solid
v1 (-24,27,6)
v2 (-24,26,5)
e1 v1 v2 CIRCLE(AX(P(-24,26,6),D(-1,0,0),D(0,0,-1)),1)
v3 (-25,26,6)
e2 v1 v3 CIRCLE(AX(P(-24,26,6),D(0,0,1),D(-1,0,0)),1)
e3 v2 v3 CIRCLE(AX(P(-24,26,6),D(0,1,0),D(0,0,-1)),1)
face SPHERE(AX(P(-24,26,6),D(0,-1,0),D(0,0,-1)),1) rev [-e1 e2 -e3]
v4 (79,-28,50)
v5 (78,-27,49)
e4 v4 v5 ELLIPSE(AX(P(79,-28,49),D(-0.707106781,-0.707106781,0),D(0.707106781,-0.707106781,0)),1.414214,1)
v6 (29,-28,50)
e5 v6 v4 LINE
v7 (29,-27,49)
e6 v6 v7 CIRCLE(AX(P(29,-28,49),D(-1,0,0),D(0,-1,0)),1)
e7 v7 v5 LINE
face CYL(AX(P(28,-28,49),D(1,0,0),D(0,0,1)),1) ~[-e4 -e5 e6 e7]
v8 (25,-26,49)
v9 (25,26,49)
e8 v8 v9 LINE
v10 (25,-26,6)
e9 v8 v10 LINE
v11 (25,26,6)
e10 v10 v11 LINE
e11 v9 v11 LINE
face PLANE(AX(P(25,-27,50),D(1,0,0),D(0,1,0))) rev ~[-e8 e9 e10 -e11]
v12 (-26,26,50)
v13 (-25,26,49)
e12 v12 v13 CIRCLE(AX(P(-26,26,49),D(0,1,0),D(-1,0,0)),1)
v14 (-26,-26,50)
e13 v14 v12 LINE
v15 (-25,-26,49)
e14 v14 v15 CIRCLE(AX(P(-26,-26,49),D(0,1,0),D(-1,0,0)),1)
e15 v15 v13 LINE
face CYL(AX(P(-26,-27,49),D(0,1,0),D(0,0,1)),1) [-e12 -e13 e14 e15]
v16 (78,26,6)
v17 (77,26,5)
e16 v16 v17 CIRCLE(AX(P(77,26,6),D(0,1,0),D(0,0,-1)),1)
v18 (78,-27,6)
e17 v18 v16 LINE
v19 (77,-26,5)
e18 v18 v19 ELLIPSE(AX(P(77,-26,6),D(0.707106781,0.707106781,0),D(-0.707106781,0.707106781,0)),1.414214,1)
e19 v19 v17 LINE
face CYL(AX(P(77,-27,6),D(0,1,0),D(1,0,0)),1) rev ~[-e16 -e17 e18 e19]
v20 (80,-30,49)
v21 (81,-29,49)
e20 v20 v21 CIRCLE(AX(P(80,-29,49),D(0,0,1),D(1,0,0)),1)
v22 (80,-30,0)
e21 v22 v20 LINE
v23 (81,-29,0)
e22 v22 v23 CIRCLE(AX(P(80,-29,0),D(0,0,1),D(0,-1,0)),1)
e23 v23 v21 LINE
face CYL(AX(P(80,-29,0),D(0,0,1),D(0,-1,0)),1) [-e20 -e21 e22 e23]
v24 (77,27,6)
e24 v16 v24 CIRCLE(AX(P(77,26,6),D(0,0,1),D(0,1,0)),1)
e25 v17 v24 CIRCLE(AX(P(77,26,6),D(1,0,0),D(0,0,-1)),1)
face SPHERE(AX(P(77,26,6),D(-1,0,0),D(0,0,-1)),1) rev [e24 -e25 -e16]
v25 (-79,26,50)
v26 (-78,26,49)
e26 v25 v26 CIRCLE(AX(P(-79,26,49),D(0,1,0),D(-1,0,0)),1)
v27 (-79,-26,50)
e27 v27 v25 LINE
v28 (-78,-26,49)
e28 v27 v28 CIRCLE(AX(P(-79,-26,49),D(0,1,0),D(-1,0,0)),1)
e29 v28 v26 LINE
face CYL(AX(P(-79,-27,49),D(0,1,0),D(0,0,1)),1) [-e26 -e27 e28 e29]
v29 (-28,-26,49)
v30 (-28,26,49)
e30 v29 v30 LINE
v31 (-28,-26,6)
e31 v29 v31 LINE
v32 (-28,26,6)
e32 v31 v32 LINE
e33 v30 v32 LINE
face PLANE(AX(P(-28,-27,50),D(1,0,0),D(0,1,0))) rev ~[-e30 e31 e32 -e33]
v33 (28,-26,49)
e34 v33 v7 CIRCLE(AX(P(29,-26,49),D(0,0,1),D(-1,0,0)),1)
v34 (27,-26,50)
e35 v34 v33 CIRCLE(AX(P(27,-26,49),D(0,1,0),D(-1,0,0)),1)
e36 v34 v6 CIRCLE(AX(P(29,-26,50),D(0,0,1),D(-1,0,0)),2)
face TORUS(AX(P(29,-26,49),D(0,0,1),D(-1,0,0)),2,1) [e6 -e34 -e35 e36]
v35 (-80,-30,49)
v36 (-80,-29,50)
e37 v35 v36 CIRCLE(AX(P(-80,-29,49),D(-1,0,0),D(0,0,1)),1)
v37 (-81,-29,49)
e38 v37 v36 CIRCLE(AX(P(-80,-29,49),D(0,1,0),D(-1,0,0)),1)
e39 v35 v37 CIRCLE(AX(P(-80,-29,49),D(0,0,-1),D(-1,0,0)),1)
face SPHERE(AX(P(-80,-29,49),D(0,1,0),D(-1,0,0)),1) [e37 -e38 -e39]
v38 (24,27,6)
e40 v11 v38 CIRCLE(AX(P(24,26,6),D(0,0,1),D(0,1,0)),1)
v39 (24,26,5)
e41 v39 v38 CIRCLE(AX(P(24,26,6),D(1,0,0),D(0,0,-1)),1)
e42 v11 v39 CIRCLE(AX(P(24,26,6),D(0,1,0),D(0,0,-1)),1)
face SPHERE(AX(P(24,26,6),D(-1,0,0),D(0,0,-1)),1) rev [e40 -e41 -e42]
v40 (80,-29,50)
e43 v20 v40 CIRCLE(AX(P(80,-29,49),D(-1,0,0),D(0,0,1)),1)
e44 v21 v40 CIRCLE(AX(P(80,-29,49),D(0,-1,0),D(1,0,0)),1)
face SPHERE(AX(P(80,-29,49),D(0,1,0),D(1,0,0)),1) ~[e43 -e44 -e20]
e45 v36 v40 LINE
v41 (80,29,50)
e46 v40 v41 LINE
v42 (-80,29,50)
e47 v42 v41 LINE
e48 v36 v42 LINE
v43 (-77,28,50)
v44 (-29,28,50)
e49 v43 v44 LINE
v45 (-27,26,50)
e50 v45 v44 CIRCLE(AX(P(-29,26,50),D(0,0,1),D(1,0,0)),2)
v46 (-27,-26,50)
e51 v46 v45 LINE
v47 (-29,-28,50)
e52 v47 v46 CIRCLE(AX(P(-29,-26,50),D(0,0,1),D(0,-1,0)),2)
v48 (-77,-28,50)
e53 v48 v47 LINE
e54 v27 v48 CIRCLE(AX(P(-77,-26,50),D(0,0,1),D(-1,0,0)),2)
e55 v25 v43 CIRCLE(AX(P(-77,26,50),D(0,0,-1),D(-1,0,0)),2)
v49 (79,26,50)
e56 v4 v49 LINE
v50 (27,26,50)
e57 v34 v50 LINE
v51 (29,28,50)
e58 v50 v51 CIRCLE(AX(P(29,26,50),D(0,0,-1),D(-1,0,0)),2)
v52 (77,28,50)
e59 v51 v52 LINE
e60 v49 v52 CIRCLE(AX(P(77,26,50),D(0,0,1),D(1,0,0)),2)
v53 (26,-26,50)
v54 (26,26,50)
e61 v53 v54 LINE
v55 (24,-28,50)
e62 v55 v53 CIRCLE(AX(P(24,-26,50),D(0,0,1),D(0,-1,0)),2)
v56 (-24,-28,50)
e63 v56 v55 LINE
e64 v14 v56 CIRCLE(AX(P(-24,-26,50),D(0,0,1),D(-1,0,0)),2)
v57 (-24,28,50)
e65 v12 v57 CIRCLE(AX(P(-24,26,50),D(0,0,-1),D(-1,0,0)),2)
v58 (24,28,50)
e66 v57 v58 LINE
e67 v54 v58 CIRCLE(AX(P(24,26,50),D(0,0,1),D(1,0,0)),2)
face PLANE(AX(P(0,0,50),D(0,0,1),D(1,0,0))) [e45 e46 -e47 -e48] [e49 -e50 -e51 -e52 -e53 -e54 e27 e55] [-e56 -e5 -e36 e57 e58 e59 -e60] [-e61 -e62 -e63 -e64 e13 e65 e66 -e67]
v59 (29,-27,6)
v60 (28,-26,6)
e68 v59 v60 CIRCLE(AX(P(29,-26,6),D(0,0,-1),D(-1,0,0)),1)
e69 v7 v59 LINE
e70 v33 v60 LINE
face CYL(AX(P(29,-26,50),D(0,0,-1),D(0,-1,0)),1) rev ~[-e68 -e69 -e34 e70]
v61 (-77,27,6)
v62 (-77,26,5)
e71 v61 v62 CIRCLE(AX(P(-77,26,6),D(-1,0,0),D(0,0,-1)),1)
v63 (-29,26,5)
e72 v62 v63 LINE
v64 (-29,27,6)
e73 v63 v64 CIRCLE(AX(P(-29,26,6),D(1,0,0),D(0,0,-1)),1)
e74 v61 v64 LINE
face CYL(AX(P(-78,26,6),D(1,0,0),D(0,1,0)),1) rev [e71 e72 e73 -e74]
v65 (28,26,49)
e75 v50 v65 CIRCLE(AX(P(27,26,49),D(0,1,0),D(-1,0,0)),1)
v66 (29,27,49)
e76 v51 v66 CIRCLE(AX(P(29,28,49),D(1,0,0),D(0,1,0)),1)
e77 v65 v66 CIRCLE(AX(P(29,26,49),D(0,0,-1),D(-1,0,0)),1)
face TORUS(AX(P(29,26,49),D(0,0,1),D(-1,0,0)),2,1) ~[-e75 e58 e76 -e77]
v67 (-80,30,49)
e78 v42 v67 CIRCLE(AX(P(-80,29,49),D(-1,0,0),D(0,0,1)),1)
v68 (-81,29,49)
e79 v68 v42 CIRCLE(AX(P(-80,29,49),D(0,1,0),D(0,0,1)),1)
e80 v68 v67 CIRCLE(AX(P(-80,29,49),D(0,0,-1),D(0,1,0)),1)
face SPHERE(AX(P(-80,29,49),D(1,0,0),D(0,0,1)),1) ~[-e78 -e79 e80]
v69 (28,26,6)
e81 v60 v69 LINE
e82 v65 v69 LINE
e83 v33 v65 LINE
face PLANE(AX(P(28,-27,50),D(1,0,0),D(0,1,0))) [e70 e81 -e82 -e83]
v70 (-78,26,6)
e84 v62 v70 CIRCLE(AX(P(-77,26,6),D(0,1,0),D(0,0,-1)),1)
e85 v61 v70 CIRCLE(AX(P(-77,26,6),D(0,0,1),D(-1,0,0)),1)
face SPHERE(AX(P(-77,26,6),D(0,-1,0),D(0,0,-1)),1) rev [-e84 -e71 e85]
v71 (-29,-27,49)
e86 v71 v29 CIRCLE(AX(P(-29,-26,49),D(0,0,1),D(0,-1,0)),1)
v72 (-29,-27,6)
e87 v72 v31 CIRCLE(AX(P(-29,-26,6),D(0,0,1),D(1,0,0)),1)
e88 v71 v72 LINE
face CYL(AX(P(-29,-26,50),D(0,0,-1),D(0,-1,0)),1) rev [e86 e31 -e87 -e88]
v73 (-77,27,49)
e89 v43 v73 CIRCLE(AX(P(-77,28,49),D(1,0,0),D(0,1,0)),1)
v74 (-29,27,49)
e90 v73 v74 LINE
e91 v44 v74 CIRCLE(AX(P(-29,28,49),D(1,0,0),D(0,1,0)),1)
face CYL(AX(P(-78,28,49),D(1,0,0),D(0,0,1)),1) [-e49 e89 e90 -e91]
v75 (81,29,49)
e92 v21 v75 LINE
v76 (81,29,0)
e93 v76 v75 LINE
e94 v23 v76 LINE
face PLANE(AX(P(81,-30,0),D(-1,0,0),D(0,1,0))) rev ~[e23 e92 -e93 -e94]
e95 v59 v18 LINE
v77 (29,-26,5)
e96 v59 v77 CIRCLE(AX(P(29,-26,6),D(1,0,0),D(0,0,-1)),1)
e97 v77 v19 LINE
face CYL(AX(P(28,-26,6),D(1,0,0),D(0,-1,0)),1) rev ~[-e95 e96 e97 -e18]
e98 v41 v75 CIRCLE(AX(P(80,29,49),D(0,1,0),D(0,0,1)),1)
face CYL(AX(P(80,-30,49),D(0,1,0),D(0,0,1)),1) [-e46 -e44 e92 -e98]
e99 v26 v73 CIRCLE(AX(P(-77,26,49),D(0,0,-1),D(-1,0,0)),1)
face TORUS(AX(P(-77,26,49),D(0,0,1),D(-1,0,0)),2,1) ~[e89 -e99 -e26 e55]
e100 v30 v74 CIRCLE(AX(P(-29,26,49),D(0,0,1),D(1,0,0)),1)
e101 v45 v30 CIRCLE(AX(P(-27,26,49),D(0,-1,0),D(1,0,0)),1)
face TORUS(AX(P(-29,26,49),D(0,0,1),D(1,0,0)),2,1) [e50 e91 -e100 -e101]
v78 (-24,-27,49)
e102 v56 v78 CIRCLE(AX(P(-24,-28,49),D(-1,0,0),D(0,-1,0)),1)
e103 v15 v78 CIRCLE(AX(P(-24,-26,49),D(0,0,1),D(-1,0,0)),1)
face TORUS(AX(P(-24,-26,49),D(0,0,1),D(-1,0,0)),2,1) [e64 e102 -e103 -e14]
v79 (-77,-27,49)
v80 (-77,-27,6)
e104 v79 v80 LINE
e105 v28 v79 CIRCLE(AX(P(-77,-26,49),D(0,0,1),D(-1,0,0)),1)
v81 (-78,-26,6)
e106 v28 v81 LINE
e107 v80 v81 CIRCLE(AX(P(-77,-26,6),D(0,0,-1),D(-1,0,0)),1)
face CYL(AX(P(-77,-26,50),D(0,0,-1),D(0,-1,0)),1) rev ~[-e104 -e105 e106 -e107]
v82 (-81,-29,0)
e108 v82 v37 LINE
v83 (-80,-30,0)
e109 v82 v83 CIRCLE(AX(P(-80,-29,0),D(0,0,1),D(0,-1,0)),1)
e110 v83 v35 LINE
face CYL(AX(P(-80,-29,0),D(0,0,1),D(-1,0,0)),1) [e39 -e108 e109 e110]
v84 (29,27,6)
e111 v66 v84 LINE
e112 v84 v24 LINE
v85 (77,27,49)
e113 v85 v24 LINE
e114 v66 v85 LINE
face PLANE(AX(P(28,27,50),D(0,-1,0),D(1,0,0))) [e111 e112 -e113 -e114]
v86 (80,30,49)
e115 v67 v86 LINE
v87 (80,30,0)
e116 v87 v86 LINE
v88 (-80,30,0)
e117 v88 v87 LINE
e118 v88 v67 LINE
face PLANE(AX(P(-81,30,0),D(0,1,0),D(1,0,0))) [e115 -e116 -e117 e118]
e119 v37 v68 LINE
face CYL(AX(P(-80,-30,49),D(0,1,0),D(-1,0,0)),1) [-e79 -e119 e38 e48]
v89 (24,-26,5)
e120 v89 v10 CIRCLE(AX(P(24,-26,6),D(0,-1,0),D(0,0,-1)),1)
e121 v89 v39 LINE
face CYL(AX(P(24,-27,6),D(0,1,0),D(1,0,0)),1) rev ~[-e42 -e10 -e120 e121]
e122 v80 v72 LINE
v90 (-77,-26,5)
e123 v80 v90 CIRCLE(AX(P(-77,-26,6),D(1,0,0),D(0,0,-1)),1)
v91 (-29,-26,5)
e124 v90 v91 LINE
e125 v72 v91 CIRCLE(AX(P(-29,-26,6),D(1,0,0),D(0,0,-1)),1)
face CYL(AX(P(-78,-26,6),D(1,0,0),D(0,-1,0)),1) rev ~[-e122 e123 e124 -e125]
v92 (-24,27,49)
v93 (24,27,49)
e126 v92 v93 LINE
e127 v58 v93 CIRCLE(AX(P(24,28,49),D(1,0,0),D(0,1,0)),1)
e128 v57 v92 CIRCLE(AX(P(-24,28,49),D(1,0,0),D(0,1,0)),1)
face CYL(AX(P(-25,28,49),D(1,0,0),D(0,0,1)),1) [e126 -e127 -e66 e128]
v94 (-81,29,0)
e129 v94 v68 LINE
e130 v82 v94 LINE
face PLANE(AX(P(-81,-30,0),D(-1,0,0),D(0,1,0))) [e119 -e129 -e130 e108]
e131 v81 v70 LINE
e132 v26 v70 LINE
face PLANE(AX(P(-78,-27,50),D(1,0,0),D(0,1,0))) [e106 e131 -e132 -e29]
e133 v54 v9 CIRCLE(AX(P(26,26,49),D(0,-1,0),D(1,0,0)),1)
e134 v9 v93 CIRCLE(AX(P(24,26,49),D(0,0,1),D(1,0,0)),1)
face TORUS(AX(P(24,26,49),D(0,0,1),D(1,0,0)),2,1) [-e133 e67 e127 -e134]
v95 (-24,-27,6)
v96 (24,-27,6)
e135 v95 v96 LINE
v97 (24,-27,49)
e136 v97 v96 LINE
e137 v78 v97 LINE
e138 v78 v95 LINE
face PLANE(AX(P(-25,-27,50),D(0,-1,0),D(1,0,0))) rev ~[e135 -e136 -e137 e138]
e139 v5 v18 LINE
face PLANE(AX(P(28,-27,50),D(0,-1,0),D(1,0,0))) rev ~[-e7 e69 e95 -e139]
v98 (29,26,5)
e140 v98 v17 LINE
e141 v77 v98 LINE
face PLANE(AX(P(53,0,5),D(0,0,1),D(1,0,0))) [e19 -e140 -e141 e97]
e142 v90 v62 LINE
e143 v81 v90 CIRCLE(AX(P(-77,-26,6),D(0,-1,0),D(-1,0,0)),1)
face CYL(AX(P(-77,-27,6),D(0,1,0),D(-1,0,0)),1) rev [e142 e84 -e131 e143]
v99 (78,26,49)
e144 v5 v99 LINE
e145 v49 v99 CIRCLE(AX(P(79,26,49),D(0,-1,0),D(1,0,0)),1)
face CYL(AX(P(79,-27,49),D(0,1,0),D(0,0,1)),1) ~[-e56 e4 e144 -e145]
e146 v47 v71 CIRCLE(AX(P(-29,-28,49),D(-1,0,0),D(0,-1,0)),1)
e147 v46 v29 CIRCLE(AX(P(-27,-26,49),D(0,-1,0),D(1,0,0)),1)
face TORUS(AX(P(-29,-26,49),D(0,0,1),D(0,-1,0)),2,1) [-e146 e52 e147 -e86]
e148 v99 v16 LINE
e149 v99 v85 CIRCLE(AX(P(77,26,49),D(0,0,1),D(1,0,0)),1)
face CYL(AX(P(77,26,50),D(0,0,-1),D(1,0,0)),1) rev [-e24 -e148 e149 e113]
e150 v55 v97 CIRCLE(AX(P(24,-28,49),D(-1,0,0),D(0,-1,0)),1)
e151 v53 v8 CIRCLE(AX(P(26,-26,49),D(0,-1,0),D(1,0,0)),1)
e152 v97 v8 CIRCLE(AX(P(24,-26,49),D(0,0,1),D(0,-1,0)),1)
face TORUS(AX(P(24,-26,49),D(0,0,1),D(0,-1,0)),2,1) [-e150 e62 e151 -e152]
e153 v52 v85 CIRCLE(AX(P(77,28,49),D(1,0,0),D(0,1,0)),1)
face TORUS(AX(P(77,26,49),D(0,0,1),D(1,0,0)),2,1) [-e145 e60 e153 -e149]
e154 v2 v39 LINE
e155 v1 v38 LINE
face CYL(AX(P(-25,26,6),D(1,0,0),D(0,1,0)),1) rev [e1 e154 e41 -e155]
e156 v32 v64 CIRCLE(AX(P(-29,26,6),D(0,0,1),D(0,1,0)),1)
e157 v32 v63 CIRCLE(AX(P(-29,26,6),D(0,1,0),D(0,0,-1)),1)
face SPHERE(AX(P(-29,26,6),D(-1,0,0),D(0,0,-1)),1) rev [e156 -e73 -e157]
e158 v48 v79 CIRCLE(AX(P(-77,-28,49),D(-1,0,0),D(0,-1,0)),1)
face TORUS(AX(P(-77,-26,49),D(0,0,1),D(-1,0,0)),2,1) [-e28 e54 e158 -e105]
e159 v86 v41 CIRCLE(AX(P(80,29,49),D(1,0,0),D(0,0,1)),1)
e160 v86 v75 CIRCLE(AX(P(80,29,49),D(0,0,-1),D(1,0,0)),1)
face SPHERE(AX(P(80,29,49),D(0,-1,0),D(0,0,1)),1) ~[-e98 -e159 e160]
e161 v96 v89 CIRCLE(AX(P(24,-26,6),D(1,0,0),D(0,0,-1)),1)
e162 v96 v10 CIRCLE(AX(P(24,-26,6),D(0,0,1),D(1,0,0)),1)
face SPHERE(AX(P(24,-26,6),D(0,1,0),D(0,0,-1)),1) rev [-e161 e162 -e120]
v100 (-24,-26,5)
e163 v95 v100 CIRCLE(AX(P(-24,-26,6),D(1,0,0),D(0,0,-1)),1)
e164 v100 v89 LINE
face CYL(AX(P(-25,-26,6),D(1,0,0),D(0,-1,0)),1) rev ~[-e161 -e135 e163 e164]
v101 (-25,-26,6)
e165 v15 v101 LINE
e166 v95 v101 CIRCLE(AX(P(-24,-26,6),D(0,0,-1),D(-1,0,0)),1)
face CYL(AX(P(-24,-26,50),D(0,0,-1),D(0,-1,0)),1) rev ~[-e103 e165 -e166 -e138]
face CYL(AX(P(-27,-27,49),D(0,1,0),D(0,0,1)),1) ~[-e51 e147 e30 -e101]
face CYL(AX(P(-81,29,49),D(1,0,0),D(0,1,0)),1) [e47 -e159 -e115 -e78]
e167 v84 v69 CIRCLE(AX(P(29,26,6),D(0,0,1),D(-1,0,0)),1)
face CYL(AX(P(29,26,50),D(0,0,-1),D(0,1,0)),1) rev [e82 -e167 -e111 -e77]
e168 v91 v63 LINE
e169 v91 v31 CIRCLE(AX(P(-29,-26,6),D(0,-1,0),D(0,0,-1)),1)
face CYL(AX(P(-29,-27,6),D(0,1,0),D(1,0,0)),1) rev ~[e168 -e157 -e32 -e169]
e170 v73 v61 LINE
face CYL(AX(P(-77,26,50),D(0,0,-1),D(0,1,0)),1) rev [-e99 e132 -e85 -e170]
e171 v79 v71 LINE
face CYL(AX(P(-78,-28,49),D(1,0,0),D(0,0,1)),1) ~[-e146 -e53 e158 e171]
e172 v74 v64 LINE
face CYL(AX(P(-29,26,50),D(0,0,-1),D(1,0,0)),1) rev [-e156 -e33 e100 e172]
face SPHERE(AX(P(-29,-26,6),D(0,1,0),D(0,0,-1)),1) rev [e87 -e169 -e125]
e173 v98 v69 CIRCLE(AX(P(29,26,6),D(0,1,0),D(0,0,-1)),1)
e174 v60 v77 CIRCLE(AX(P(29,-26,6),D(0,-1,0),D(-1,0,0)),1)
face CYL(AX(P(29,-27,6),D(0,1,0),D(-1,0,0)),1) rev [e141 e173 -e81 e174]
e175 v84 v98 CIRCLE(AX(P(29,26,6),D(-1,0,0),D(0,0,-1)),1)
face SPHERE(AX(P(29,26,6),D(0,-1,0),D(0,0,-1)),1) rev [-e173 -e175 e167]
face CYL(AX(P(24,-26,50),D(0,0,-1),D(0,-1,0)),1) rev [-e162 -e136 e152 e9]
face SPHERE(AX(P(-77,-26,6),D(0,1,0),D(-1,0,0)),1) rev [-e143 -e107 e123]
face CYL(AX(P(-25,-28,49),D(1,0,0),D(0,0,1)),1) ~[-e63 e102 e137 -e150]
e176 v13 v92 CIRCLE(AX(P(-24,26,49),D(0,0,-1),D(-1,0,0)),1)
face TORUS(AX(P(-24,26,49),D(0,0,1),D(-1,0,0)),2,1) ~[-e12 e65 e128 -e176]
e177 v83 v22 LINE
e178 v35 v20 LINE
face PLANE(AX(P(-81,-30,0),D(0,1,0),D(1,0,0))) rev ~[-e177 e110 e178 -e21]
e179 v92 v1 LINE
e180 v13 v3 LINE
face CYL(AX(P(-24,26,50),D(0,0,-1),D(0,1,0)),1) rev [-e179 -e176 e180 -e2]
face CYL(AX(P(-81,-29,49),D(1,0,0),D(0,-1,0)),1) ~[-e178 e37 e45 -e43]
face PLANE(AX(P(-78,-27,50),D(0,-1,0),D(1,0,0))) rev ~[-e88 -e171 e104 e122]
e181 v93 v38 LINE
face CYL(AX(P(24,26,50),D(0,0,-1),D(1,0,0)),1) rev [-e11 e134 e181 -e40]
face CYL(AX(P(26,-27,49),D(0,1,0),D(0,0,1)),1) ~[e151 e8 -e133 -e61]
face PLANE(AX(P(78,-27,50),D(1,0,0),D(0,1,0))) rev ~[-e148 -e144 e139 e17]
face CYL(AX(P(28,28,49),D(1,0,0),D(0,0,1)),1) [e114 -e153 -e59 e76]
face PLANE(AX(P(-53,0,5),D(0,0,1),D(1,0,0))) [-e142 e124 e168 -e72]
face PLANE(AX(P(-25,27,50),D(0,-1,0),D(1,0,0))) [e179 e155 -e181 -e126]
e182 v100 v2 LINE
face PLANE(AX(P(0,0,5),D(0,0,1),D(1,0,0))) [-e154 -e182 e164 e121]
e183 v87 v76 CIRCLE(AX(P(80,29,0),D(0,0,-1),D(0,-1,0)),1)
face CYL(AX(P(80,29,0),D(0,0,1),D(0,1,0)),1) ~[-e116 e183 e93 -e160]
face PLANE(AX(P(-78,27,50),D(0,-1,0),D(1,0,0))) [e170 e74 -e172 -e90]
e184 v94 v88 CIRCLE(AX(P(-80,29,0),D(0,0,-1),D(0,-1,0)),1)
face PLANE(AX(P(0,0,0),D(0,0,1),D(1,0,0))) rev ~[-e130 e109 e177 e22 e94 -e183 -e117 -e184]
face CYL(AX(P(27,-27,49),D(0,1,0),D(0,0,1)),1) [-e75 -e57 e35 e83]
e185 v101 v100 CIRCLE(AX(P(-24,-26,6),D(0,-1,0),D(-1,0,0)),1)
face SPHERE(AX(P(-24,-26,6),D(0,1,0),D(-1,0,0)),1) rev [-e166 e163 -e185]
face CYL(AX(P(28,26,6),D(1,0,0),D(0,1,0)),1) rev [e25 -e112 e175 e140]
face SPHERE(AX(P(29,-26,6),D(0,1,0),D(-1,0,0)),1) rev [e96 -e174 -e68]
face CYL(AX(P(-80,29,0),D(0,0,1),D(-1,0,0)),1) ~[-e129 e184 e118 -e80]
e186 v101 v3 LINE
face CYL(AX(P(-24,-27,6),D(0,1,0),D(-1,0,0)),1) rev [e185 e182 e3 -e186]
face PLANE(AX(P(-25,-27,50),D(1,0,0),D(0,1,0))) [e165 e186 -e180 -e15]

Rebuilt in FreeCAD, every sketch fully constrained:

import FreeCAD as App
import Part
import Sketcher
from FreeCAD import Vector
Q = App.Units.Quantity


def edges_at(feature, points):
    """Names of the edges that pass closest to the given points."""
    edges = feature.Shape.Edges
    near = lambda p: min(range(len(edges)), key=lambda i: edges[i].distToShape(Part.Vertex(*p))[0])
    return sorted({f"Edge{near(p) + 1}" for p in points})


def add_polygon(sketch, points):
    """Adds a closed chain of lines whose ends are joined by coincident constraints."""
    first, n = sketch.GeometryCount, len(points)
    for a, b in zip(points, points[1:] + points[:1]):
        sketch.addGeometry(Part.LineSegment(App.Vector(*a, 0), App.Vector(*b, 0)), False)
    for i in range(n):
        sketch.addConstraint(Sketcher.Constraint("Coincident", first + i, 2, first + (i + 1) % n, 1))

doc = App.newDocument("Part")
body = doc.addObject("PartDesign::Body", "Body")

sketch1 = body.newObject("Sketcher::SketchObject", "Sketch")
sketch1.AttachmentSupport = (doc.getObject("XY_Plane"), [""])
sketch1.MapMode = "FlatFace"
add_polygon(sketch1, [(-81, 30), (-81, -30), (81, -30), (81, 30)])
sketch1.addConstraint([
    Sketcher.Constraint("Vertical", 0),
    Sketcher.Constraint("Horizontal", 1),
    Sketcher.Constraint("Vertical", 2),
    Sketcher.Constraint("Horizontal", 3),
    Sketcher.Constraint("Symmetric", 0, 2, 2, 2, -1, 1),
    Sketcher.Constraint("DistanceX", 1, 1, 1, 2, Q("162 mm")),
    Sketcher.Constraint("DistanceY", 0, 2, 0, 1, Q("60 mm")),
])
pad1 = body.newObject("PartDesign::Pad", "Pad")
pad1.Profile = sketch1
pad1.Length = 50

sketch2 = body.newObject("Sketcher::SketchObject", "Sketch001")
sketch2.AttachmentSupport = (doc.getObject("XY_Plane"), [""])
sketch2.MapMode = "FlatFace"
sketch2.AttachmentOffset = App.Placement(Vector(0, 0, 50), App.Rotation())
add_polygon(sketch2, [(-78, 27), (-78, -27), (-28, -27), (-28, 27)])
add_polygon(sketch2, [(-25, 27), (-25, -27), (25, -27), (25, 27)])
add_polygon(sketch2, [(28, 27), (28, -27), (78, -27), (78, 27)])
sketch2.addConstraint([
    Sketcher.Constraint("Vertical", 0),
    Sketcher.Constraint("Horizontal", 1),
    Sketcher.Constraint("Vertical", 2),
    Sketcher.Constraint("Horizontal", 3),
    Sketcher.Constraint("Vertical", 4),
    Sketcher.Constraint("Horizontal", 5),
    Sketcher.Constraint("Vertical", 6),
    Sketcher.Constraint("Horizontal", 7),
    Sketcher.Constraint("Vertical", 8),
    Sketcher.Constraint("Horizontal", 9),
    Sketcher.Constraint("Vertical", 10),
    Sketcher.Constraint("Horizontal", 11),
    Sketcher.Constraint("Symmetric", 4, 2, 6, 2, -1, 1),
    Sketcher.Constraint("Symmetric", 2, 2, 8, 2, -1, 1),
    Sketcher.Constraint("Symmetric", 0, 2, 10, 2, -1, 1),
    Sketcher.Constraint("Horizontal", 1, 2, 4, 2),
    Sketcher.Constraint("Horizontal", 3, 2, 6, 2),
    Sketcher.Constraint("Equal", 3, 5),
    Sketcher.Constraint("DistanceX", 1, 1, 1, 2, Q("50 mm")),
    Sketcher.Constraint("DistanceY", 0, 2, 0, 1, Q("54 mm")),
    Sketcher.Constraint("DistanceX", 0, 2, -1, 1, Q("78 mm")),
])
pocket1 = body.newObject("PartDesign::Pocket", "Pocket")
pocket1.Profile = sketch2
pocket1.Length = 45
doc.recompute()

fillet = body.newObject("PartDesign::Fillet", "Fillet")
fillet.Base = (pocket1, edges_at(pocket1, [
    (81, 0, 50),
    (0, 30, 50),
    (-78, 0, 5),
    (-78, -27, 27.5),
    (-53, 27, 5),
    (-78, 27, 27.5),
    (-28, 0, 5),
    (-28, 27, 27.5),
    (-53, -27, 5),
    (-28, -27, 27.5),
    (-78, 0, 50),
    (-53, -27, 50),
    (-28, 0, 50),
    (-53, 27, 50),
    (-25, 0, 5),
    (-25, -27, 27.5),
    (0, 27, 5),
    (-25, 27, 27.5),
    (25, 0, 5),
    (25, 27, 27.5),
    (0, -27, 5),
    (25, -27, 27.5),
    (-25, 0, 50),
    (0, -27, 50),
    (25, 0, 50),
    (0, 27, 50),
    (28, 0, 5),
    (28, -27, 27.5),
    (53, 27, 5),
    (28, 27, 27.5),
    (78, 0, 5),
    (78, 27, 27.5),
    (53, -27, 5),
    (28, 0, 50),
    (53, -27, 50),
    (78, 0, 50),
    (53, 27, 50),
    (-81, 0, 50),
    (-81, 30, 25),
    (81, 30, 25),
    (81, -30, 25),
    (-81, -30, 25),
    (0, -30, 50),
]))
fillet.Radius = 1

doc.recompute()
